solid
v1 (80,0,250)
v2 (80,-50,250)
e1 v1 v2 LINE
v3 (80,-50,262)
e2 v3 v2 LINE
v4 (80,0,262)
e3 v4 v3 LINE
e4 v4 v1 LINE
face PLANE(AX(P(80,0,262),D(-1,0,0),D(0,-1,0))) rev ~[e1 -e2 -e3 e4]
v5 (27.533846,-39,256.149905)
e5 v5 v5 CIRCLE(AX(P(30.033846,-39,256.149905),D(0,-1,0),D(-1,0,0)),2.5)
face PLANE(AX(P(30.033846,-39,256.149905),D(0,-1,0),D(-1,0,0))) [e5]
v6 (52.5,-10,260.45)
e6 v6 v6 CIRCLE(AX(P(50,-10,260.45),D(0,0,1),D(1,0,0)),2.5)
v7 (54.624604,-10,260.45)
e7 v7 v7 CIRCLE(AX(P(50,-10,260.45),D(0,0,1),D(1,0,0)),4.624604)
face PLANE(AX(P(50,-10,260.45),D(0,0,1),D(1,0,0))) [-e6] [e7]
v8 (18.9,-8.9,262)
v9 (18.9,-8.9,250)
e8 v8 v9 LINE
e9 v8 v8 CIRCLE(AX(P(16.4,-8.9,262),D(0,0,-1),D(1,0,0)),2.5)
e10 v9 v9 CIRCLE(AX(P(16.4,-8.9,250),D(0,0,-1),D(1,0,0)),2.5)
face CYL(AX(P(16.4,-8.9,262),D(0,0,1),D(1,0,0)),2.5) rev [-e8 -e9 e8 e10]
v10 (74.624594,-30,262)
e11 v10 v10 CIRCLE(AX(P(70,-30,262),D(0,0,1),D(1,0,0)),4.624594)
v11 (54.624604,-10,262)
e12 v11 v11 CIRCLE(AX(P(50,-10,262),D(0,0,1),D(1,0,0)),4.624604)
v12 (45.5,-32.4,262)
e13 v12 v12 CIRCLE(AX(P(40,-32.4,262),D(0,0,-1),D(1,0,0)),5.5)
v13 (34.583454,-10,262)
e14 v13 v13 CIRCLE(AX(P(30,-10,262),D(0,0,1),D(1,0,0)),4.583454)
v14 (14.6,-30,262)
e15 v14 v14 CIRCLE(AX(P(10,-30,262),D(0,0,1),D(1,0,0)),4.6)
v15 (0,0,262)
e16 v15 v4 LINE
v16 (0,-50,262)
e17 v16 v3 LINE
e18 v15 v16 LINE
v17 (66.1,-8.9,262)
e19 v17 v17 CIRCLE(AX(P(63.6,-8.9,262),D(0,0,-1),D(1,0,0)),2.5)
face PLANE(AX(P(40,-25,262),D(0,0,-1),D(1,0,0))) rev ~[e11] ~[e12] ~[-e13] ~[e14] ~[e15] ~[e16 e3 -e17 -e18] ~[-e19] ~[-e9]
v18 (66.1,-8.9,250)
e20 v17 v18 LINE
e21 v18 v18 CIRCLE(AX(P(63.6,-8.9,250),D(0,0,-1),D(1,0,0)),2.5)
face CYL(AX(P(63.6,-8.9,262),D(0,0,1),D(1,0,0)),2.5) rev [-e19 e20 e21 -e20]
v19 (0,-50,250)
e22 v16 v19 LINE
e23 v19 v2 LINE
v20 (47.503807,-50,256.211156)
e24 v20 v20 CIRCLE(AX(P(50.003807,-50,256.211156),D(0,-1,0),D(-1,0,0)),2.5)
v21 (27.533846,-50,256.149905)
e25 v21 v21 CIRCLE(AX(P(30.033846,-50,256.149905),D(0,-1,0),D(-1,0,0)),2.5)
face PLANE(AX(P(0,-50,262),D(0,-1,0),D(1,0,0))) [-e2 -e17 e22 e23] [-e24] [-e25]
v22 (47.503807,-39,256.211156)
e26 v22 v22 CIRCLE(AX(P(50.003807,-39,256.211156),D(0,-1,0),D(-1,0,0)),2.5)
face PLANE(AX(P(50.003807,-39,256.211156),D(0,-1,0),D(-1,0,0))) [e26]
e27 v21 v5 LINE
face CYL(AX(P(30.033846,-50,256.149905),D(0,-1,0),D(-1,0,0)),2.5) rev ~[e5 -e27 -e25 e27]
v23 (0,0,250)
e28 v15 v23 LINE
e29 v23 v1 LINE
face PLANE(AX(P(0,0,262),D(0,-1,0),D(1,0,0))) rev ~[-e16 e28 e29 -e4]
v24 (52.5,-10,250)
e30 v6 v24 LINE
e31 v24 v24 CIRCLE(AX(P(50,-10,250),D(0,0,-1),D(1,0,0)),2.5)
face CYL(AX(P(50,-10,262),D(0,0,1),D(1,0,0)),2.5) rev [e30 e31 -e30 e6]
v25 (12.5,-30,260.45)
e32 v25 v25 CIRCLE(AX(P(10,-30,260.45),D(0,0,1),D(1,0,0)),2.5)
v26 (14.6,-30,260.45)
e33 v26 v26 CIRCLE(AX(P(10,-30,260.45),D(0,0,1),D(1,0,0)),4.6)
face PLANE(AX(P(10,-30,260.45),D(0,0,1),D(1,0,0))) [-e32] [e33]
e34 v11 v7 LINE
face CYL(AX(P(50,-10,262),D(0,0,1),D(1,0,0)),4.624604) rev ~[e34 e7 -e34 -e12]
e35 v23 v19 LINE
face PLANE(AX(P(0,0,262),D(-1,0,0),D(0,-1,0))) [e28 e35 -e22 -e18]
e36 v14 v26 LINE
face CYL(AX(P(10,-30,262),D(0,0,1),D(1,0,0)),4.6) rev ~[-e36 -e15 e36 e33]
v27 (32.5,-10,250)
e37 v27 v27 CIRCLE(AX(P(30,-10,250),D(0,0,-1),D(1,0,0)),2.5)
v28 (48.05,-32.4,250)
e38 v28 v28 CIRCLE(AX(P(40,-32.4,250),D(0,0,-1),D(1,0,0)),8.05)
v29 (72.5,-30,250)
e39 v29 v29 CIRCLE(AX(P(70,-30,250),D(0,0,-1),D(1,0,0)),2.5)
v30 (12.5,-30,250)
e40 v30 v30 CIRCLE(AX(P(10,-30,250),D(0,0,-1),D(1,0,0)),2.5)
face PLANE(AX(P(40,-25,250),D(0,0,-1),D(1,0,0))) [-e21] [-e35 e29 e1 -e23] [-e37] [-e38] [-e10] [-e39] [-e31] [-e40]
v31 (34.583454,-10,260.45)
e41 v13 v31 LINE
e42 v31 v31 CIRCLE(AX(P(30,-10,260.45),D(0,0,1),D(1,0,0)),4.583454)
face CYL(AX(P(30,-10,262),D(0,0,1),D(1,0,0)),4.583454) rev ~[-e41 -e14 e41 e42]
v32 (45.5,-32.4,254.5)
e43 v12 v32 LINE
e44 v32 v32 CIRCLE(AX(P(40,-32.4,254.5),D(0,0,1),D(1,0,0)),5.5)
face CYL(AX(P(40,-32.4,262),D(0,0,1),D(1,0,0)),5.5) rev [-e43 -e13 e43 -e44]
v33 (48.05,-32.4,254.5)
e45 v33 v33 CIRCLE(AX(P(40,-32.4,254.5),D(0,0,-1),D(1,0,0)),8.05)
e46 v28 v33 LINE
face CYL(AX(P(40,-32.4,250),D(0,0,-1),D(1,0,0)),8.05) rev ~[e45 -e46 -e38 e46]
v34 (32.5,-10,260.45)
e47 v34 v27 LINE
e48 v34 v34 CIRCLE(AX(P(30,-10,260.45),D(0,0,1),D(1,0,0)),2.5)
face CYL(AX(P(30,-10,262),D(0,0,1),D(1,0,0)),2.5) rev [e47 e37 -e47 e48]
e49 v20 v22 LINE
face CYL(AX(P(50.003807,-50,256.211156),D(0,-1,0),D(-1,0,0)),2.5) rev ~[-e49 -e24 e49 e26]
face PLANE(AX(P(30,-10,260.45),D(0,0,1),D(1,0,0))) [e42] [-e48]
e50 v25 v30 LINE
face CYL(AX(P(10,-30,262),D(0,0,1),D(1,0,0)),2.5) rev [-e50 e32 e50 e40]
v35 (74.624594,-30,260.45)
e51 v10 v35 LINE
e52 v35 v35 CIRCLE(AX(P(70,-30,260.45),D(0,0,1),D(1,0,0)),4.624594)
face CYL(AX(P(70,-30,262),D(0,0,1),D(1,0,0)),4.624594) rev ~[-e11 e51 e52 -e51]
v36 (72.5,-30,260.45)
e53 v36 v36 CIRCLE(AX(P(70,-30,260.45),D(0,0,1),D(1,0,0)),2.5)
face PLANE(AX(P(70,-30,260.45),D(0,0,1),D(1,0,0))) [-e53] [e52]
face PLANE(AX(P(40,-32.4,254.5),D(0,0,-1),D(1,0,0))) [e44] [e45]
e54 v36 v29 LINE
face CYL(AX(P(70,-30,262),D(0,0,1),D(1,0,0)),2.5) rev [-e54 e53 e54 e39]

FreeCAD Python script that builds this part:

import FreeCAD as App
import Part
import Sketcher
Q = App.Units.Quantity


def add_polygon(sketch, points):
    """Adds a closed chain of lines whose ends are joined by coincident constraints."""
    first, n = sketch.GeometryCount, len(points)
    for a, b in zip(points, points[1:] + points[:1]):
        sketch.addGeometry(Part.LineSegment(App.Vector(*a, 0), App.Vector(*b, 0)), False)
    for i in range(n):
        sketch.addConstraint(Sketcher.Constraint("Coincident", first + i, 2, first + (i + 1) % n, 1))

doc = App.newDocument("Part")
body = doc.addObject("PartDesign::Body", "Body")

# Sketch on XY plane
sketch1 = body.newObject("Sketcher::SketchObject", "Sketch")
sketch1.AttachmentSupport = (doc.getObject("XY_Plane"), [""])
sketch1.MapMode = "FlatFace"
sketch1.AttachmentOffset = App.Placement(App.Vector(0, 0, 262), App.Rotation())
add_polygon(sketch1, [(0, -50), (0, 0), (80, 0), (80, -50)])  # lines 0-3
sketch1.addGeometry(Part.Circle(App.Vector(16.4, -8.9, 0), App.Vector(0, 0, 1), 2.5), False)  # 4
sketch1.addGeometry(Part.Circle(App.Vector(30, -10, 0), App.Vector(0, 0, 1), 2.5), False)  # 5
sketch1.addGeometry(Part.Circle(App.Vector(50, -10, 0), App.Vector(0, 0, 1), 2.5), False)  # 6
sketch1.addGeometry(Part.Circle(App.Vector(63.6, -8.9, 0), App.Vector(0, 0, 1), 2.5), False)  # 7
sketch1.addGeometry(Part.Circle(App.Vector(10, -30, 0), App.Vector(0, 0, 1), 2.5), False)  # 8
sketch1.addGeometry(Part.Circle(App.Vector(70, -30, 0), App.Vector(0, 0, 1), 2.5), False)  # 9
sketch1.addGeometry(Part.Circle(App.Vector(40, -32.4, 0), App.Vector(0, 0, 1), 5.5), False)  # 10
sketch1.addConstraint(Sketcher.Constraint("Vertical", 0))
sketch1.addConstraint(Sketcher.Constraint("Horizontal", 1))
sketch1.addConstraint(Sketcher.Constraint("Vertical", 2))
sketch1.addConstraint(Sketcher.Constraint("Horizontal", 3))
sketch1.addConstraint(Sketcher.Constraint("Coincident", 0, 2, -1, 1))
sketch1.addConstraint(Sketcher.Constraint("Equal", 4, 5))
sketch1.addConstraint(Sketcher.Constraint("Equal", 5, 6))
sketch1.addConstraint(Sketcher.Constraint("Equal", 6, 7))
sketch1.addConstraint(Sketcher.Constraint("Equal", 7, 8))
sketch1.addConstraint(Sketcher.Constraint("Equal", 8, 9))
sketch1.addConstraint(Sketcher.Constraint("Horizontal", 5, 3, 6, 3))
sketch1.addConstraint(Sketcher.Constraint("Horizontal", 4, 3, 7, 3))
sketch1.addConstraint(Sketcher.Constraint("Horizontal", 8, 3, 9, 3))
sketch1.addConstraint(Sketcher.Constraint("Diameter", 4, Q("5 mm")))
sketch1.addConstraint(Sketcher.Constraint("Diameter", 10, Q("11 mm")))
sketch1.addConstraint(Sketcher.Constraint("DistanceX", 1, 1, 1, 2, Q("80 mm")))
sketch1.addConstraint(Sketcher.Constraint("DistanceY", 0, 1, 0, 2, Q("50 mm")))
sketch1.addConstraint(Sketcher.Constraint("DistanceX", -1, 1, 5, 3, Q("30 mm")))
sketch1.addConstraint(Sketcher.Constraint("DistanceY", 5, 3, -1, 1, Q("10 mm")))
sketch1.addConstraint(Sketcher.Constraint("DistanceX", -1, 1, 6, 3, Q("50 mm")))
sketch1.addConstraint(Sketcher.Constraint("DistanceX", -1, 1, 8, 3, Q("10 mm")))
sketch1.addConstraint(Sketcher.Constraint("DistanceY", 8, 3, -1, 1, Q("30 mm")))
sketch1.addConstraint(Sketcher.Constraint("DistanceX", -1, 1, 9, 3, Q("70 mm")))
sketch1.addConstraint(Sketcher.Constraint("DistanceX", -1, 1, 10, 3, Q("40 mm")))
sketch1.addConstraint(Sketcher.Constraint("DistanceX", -1, 1, 4, 3, Q("16.4 mm")))
sketch1.addConstraint(Sketcher.Constraint("DistanceY", 4, 3, -1, 1, Q("8.9 mm")))
sketch1.addConstraint(Sketcher.Constraint("DistanceX", -1, 1, 7, 3, Q("63.6 mm")))
sketch1.addConstraint(Sketcher.Constraint("DistanceY", 10, 3, -1, 1, Q("32.4 mm")))
pad1 = body.newObject("PartDesign::Pad", "Pad")
pad1.Profile = sketch1
pad1.Length = 12
pad1.Reversed = True

# Sketch on XZ plane
sketch2 = body.newObject("Sketcher::SketchObject", "Sketch001")
sketch2.AttachmentSupport = (doc.getObject("XZ_Plane"), [""])
sketch2.MapMode = "FlatFace"
sketch2.AttachmentOffset = App.Placement(App.Vector(0, 0, 50), App.Rotation())
sketch2.addGeometry(Part.Circle(App.Vector(30.033846, 256.149905, 0), App.Vector(0, 0, 1), 2.5), False)
sketch2.addGeometry(Part.Circle(App.Vector(50.003807, 256.211156, 0), App.Vector(0, 0, 1), 2.5), False)
sketch2.addConstraint(Sketcher.Constraint("Equal", 0, 1))
sketch2.addConstraint(Sketcher.Constraint("Diameter", 0, Q("5 mm")))
sketch2.addConstraint(Sketcher.Constraint("DistanceX", 0, 3, 1, 3, Q("19.969961 mm")))
sketch2.addConstraint(Sketcher.Constraint("DistanceY", 0, 3, 1, 3, Q("0.061251 mm")))
sketch2.addConstraint(Sketcher.Constraint("DistanceX", -1, 1, 0, 3, Q("30.033846 mm")))
sketch2.addConstraint(Sketcher.Constraint("DistanceY", -1, 1, 0, 3, Q("256.149905 mm")))
pocket1 = body.newObject("PartDesign::Pocket", "Pocket")
pocket1.Profile = sketch2
pocket1.Length = 11

# Sketch on XY plane
sketch3 = body.newObject("Sketcher::SketchObject", "Sketch002")
sketch3.AttachmentSupport = (doc.getObject("XY_Plane"), [""])
sketch3.MapMode = "FlatFace"
sketch3.AttachmentOffset = App.Placement(App.Vector(0, 0, 250), App.Rotation())
sketch3.addGeometry(Part.Circle(App.Vector(40, -32.4, 0), App.Vector(0, 0, 1), 8.05), False)
sketch3.addConstraint(Sketcher.Constraint("Diameter", 0, Q("16.1 mm")))
sketch3.addConstraint(Sketcher.Constraint("DistanceX", -1, 1, 0, 3, Q("40 mm")))
sketch3.addConstraint(Sketcher.Constraint("DistanceY", 0, 3, -1, 1, Q("32.4 mm")))
pocket2 = body.newObject("PartDesign::Pocket", "Pocket001")
pocket2.Profile = sketch3
pocket2.Length = 4.5
pocket2.Reversed = True

# Sketch on XY plane
sketch4 = body.newObject("Sketcher::SketchObject", "Sketch003")
sketch4.AttachmentSupport = (doc.getObject("XY_Plane"), [""])
sketch4.MapMode = "FlatFace"
sketch4.AttachmentOffset = App.Placement(App.Vector(0, 0, 262), App.Rotation())
sketch4.addGeometry(Part.Circle(App.Vector(10, -30, 0), App.Vector(0, 0, 1), 4.6), False)
sketch4.addGeometry(Part.Circle(App.Vector(70, -30, 0), App.Vector(0, 0, 1), 4.624594), False)
sketch4.addGeometry(Part.Circle(App.Vector(30, -10, 0), App.Vector(0, 0, 1), 4.583454), False)
sketch4.addGeometry(Part.Circle(App.Vector(50, -10, 0), App.Vector(0, 0, 1), 4.624604), False)
sketch4.addConstraint(Sketcher.Constraint("Horizontal", 0, 3, 1, 3))
sketch4.addConstraint(Sketcher.Constraint("Horizontal", 2, 3, 3, 3))
sketch4.addConstraint(Sketcher.Constraint("Diameter", 0, Q("9.2 mm")))
sketch4.addConstraint(Sketcher.Constraint("DistanceX", -1, 1, 0, 3, Q("10 mm")))
sketch4.addConstraint(Sketcher.Constraint("DistanceY", 0, 3, -1, 1, Q("30 mm")))
sketch4.addConstraint(Sketcher.Constraint("DistanceX", -1, 1, 1, 3, Q("70 mm")))
sketch4.addConstraint(Sketcher.Constraint("DistanceX", -1, 1, 2, 3, Q("30 mm")))
sketch4.addConstraint(Sketcher.Constraint("DistanceY", 2, 3, -1, 1, Q("10 mm")))
sketch4.addConstraint(Sketcher.Constraint("DistanceX", -1, 1, 3, 3, Q("50 mm")))
sketch4.addConstraint(Sketcher.Constraint("Diameter", 1, Q("9.249188 mm")))
sketch4.addConstraint(Sketcher.Constraint("Diameter", 2, Q("9.166908 mm")))
sketch4.addConstraint(Sketcher.Constraint("Diameter", 3, Q("9.249208 mm")))
pocket3 = body.newObject("PartDesign::Pocket", "Pocket002")
pocket3.Profile = sketch4
pocket3.Length = 1.55

doc.recompute()
